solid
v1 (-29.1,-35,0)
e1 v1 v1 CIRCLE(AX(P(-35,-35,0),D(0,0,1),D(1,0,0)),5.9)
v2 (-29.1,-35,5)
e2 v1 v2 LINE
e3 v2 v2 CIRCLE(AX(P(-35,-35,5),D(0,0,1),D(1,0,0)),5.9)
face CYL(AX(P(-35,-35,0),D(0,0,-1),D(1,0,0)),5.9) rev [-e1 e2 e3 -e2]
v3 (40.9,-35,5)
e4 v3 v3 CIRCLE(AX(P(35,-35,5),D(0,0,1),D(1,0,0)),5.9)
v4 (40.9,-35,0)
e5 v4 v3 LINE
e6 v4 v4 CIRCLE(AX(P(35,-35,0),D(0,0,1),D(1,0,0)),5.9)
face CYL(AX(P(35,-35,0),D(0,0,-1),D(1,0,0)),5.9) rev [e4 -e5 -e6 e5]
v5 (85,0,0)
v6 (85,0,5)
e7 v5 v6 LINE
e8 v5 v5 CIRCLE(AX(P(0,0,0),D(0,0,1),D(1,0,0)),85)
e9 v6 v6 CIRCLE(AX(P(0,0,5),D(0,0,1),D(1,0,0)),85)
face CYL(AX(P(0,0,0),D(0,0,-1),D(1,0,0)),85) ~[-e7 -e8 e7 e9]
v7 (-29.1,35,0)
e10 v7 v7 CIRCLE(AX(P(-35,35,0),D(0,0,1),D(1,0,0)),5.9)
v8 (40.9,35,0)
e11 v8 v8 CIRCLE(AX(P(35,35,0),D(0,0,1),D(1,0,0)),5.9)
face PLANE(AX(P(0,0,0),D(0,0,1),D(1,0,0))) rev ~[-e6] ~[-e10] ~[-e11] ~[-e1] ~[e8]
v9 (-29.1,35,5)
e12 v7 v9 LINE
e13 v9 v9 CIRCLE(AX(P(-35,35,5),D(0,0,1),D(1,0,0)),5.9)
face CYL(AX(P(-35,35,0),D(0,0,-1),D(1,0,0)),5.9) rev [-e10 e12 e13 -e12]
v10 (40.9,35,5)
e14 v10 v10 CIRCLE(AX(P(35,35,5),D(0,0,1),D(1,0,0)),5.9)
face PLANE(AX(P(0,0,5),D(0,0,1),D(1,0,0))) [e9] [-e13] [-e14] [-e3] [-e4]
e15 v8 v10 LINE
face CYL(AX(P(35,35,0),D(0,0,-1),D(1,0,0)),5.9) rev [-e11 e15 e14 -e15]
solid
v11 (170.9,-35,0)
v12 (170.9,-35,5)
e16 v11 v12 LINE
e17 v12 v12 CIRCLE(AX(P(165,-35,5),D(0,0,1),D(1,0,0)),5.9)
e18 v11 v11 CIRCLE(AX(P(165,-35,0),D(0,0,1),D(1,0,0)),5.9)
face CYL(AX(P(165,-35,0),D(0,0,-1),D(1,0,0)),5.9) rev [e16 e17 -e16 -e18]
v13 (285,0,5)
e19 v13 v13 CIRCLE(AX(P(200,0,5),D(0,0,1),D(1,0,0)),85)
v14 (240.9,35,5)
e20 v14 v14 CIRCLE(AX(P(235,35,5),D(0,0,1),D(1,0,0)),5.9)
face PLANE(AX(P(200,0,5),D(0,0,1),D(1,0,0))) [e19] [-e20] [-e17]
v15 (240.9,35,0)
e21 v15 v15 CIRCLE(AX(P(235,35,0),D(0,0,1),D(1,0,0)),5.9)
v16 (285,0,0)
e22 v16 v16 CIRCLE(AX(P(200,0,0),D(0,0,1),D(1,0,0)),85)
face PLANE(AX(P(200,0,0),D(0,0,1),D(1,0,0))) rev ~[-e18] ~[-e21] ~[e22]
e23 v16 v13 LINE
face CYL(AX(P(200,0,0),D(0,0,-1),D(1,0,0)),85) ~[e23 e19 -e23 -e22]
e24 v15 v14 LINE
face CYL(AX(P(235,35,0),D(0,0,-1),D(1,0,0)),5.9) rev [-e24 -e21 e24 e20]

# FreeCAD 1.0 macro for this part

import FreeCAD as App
import Part
import Sketcher
Q = App.Units.Quantity

doc = App.newDocument("Part")
params = doc.addObject("Spreadsheet::Sheet", "Params")
for row, (alias, value) in enumerate([
    ("sketch1_diameter", "170 mm"),
    ("sketch1_diameter2", "11.8 mm"),
    ("pad1_length", "5 mm"),
], start=1):
    params.set(f"A{row}", alias)
    params.set(f"B{row}", "=" + value)
    params.setAlias(f"B{row}", alias)

body = doc.addObject("PartDesign::Body", "Body")
body.AllowCompound = True

# Sketch on XY plane
sketch1 = body.newObject("Sketcher::SketchObject", "Sketch")
sketch1.AttachmentSupport = (doc.getObject("XY_Plane"), [""])
sketch1.MapMode = "FlatFace"
sketch1.addGeometry([
    Part.Circle(App.Vector(0, 0, 0), App.Vector(0, 0, 1), 85),  # 0
    Part.Circle(App.Vector(-35, -35, 0), App.Vector(0, 0, 1), 6),  # 1
    Part.Circle(App.Vector(35, -35, 0), App.Vector(0, 0, 1), 6),  # 2
    Part.Circle(App.Vector(-35, 35, 0), App.Vector(0, 0, 1), 6),  # 3
    Part.Circle(App.Vector(35, 35, 0), App.Vector(0, 0, 1), 6),  # 4
    Part.Circle(App.Vector(200, 0, 0), App.Vector(0, 0, 1), 85),  # 5
    Part.Circle(App.Vector(165, -35, 0), App.Vector(0, 0, 1), 6),  # 6
    Part.Circle(App.Vector(235, 35, 0), App.Vector(0, 0, 1), 6),  # 7
], False)
sketch1.addConstraint([
    Sketcher.Constraint("Coincident", 0, 3, -1, 1),
    Sketcher.Constraint("Equal", 1, 2),
    Sketcher.Constraint("Equal", 2, 3),
    Sketcher.Constraint("Equal", 3, 4),
    Sketcher.Constraint("Equal", 0, 5),
    Sketcher.Constraint("Equal", 4, 6),
    Sketcher.Constraint("Equal", 6, 7),
    Sketcher.Constraint("Symmetric", 2, 3, 3, 3, -1, 1),
    Sketcher.Constraint("Symmetric", 1, 3, 4, 3, -1, 1),
    Sketcher.Constraint("Symmetric", 1, 3, 2, 3, -2),
    Sketcher.Constraint("PointOnObject", 5, 3, -1),
    Sketcher.Constraint("Horizontal", 2, 3, 6, 3),
    Sketcher.Constraint("Horizontal", 4, 3, 7, 3),
    Sketcher.Constraint("Diameter", 0, Q("170 mm")),
    Sketcher.Constraint("Diameter", 1, Q("11.8 mm")),
    Sketcher.Constraint("DistanceX", 1, 3, -1, 1, Q("35 mm")),
    Sketcher.Constraint("DistanceY", 1, 3, -1, 1, Q("35 mm")),
    Sketcher.Constraint("DistanceX", -1, 1, 5, 3, Q("200 mm")),
    Sketcher.Constraint("DistanceX", -1, 1, 6, 3, Q("165 mm")),
    Sketcher.Constraint("DistanceX", -1, 1, 7, 3, Q("235 mm")),
])
sketch1.setExpression("Constraints[13]", "Params.sketch1_diameter")
sketch1.setExpression("Constraints[14]", "Params.sketch1_diameter2")
pad1 = body.newObject("PartDesign::Pad", "Pad")
pad1.Profile = sketch1
pad1.setExpression("Length", "Params.pad1_length")

doc.recompute()
